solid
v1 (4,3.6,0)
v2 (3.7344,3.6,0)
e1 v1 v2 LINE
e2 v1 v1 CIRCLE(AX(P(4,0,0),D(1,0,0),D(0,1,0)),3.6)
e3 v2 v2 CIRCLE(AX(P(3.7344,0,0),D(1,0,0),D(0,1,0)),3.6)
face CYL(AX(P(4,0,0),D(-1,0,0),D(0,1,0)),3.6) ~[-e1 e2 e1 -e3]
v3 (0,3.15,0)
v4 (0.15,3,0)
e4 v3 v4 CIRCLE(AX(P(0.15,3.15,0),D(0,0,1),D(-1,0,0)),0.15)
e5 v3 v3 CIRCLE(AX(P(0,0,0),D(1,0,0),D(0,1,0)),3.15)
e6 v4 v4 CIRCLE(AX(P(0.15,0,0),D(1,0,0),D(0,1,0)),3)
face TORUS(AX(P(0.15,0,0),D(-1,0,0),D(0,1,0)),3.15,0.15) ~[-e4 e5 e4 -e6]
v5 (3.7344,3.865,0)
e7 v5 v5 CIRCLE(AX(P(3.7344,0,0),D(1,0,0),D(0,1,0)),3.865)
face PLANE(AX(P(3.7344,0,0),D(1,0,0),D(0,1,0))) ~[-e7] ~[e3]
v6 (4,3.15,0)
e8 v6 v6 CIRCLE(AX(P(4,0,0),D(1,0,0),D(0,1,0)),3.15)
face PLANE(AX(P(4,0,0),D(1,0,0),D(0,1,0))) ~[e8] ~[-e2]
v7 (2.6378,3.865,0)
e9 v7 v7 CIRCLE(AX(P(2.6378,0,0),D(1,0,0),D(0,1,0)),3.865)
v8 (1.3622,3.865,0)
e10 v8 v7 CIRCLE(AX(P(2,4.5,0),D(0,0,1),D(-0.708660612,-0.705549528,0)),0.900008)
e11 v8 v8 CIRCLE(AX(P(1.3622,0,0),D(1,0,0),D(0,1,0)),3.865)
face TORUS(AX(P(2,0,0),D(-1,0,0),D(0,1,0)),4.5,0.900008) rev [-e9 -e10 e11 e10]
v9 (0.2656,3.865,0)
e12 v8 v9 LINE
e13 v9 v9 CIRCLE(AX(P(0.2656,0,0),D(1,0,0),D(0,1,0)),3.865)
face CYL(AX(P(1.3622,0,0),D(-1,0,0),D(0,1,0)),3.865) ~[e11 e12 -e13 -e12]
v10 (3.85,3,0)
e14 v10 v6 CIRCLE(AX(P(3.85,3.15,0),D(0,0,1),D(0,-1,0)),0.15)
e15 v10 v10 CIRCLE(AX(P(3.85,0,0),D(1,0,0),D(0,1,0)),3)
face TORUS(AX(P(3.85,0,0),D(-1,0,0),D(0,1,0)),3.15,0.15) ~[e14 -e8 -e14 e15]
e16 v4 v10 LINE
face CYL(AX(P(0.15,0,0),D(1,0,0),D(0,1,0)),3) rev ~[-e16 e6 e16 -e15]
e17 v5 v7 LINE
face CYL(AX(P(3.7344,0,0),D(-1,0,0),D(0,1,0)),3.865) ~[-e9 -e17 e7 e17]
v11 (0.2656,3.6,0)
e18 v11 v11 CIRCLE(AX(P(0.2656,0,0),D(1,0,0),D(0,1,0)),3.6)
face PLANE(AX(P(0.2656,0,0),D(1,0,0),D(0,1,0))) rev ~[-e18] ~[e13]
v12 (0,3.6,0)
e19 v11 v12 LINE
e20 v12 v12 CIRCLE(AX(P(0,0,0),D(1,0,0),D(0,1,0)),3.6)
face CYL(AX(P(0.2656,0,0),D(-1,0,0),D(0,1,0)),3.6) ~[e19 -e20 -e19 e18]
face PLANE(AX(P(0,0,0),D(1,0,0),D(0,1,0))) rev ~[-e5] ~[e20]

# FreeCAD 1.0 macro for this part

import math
import FreeCAD as App
import Part
import Sketcher
from FreeCAD import Vector

doc = App.newDocument("Part")
body = doc.addObject("PartDesign::Body", "Body")

sketch1 = body.newObject("Sketcher::SketchObject", "Sketch")
sketch1.AttachmentSupport = (doc.getObject("XY_Plane"), [""])
sketch1.MapMode = "FlatFace"
sketch1.addGeometry([
    Part.LineSegment(Vector(0, 3.6, 0), Vector(0, 3.15, 0)),
    Part.ArcOfCircle(Part.Circle(Vector(0.15, 3.15, 0), Vector(0, 0, 1), 0.15), math.radians(180), math.radians(270)),
    Part.LineSegment(Vector(0.15, 3, 0), Vector(3.85, 3, 0)),
    Part.ArcOfCircle(Part.Circle(Vector(3.85, 3.15, 0), Vector(0, 0, 1), 0.15), math.radians(-90), math.radians(0)),
    Part.LineSegment(Vector(4, 3.15, 0), Vector(4, 3.6, 0)),
    Part.LineSegment(Vector(4, 3.6, 0), Vector(3.73, 3.6, 0)),
    Part.LineSegment(Vector(3.73, 3.6, 0), Vector(3.73, 3.87, 0)),
    Part.LineSegment(Vector(3.73, 3.87, 0), Vector(2.64, 3.87, 0)),
    Part.ArcOfCircle(Part.Circle(Vector(2, 4.5, 0), Vector(0, 0, 1), 0.9), math.radians(-135), math.radians(-45)),
    Part.LineSegment(Vector(1.36, 3.87, 0), Vector(0.27, 3.87, 0)),
    Part.LineSegment(Vector(0.27, 3.87, 0), Vector(0.27, 3.6, 0)),
    Part.LineSegment(Vector(0.27, 3.6, 0), Vector(0, 3.6, 0)),
], False)
sketch1.addConstraint([
    Sketcher.Constraint("Tangent", 0, 2, 1, 1),
    Sketcher.Constraint("Tangent", 1, 2, 2, 1),
    Sketcher.Constraint("Tangent", 2, 2, 3, 1),
    Sketcher.Constraint("Tangent", 3, 2, 4, 1),
    Sketcher.Constraint("Coincident", 4, 2, 5, 1),
    Sketcher.Constraint("Coincident", 5, 2, 6, 1),
    Sketcher.Constraint("Coincident", 6, 2, 7, 1),
    Sketcher.Constraint("Coincident", 7, 2, 8, 2),
    Sketcher.Constraint("Coincident", 8, 1, 9, 1),
    Sketcher.Constraint("Coincident", 9, 2, 10, 1),
    Sketcher.Constraint("Coincident", 10, 2, 11, 1),
    Sketcher.Constraint("Coincident", 11, 2, 0, 1),
    Sketcher.Constraint("Vertical", 0),
    Sketcher.Constraint("Horizontal", 2),
    Sketcher.Constraint("Vertical", 4),
    Sketcher.Constraint("Horizontal", 5),
    Sketcher.Constraint("Vertical", 6),
    Sketcher.Constraint("Horizontal", 7),
    Sketcher.Constraint("Horizontal", 9),
    Sketcher.Constraint("Vertical", 10),
    Sketcher.Constraint("Horizontal", 11),
    Sketcher.Constraint("Equal", 1, 3),
    Sketcher.Constraint("PointOnObject", 0, 2, -2),
    Sketcher.Constraint("Horizontal", 7, 2, 8, 1),
    Sketcher.Constraint("Horizontal", 5, 2, 10, 2),
    Sketcher.Constraint("Equal", 7, 9),
    Sketcher.Constraint("Equal", 5, 11),
    Sketcher.Constraint("Radius", 8, 0.9),
    Sketcher.Constraint("Radius", 1, 0.15),
    Sketcher.Constraint("DistanceX", 2, 1, 2, 2, 3.7),
    Sketcher.Constraint("DistanceY", -1, 1, 1, 2, 3.0),
    Sketcher.Constraint("DistanceY", 0, 2, 0, 1, 0.45),
    Sketcher.Constraint("DistanceY", -1, 1, 8, 3, 4.5),
    Sketcher.Constraint("DistanceY", 6, 1, 6, 2, 0.265),
    Sketcher.Constraint("DistanceX", 5, 2, 5, 1, 0.2656),
])
revolution = body.newObject("PartDesign::Revolution", "Revolution")
revolution.Profile = sketch1
revolution.ReferenceAxis = (sketch1, ["H_Axis"])
revolution.Angle = 360

doc.recompute()
